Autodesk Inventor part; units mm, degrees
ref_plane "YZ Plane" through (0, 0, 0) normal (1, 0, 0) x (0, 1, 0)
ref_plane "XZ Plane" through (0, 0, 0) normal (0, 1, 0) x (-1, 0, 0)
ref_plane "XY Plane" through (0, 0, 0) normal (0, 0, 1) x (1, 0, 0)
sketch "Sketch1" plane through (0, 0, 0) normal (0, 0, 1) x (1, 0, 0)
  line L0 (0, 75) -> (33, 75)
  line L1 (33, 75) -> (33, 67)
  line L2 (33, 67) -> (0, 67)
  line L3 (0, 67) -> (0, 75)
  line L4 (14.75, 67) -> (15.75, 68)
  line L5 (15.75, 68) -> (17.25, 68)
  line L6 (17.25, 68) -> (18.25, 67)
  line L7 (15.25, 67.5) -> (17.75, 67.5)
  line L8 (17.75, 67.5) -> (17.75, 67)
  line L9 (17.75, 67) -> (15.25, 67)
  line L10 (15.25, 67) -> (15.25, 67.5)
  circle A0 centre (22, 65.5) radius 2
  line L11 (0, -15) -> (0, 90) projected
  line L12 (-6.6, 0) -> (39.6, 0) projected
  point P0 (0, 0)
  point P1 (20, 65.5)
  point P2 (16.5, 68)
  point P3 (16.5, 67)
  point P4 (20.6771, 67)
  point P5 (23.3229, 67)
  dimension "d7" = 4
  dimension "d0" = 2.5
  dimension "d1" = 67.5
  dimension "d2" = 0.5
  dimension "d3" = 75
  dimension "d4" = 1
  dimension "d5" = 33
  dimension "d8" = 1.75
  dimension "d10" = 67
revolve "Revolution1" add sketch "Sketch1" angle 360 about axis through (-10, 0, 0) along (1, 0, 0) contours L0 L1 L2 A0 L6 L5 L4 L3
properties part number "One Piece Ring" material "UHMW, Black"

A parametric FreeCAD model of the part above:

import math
import FreeCAD as App
import Part
import Sketcher

doc = App.newDocument("Part")
body = doc.addObject("PartDesign::Body", "Body")

# Sketch on XY plane
sketch1 = body.newObject("Sketcher::SketchObject", "Sketch")
sketch1.AttachmentSupport = (doc.getObject("XY_Plane"), [""])
sketch1.MapMode = "FlatFace"
sketch1.addGeometry([
    Part.LineSegment(App.Vector(33, 75, 0), App.Vector(0, 75, 0)),  # 0
    Part.LineSegment(App.Vector(0, 75, 0), App.Vector(0, 67, 0)),  # 1
    Part.LineSegment(App.Vector(0, 67, 0), App.Vector(14.8, 67, 0)),  # 2
    Part.LineSegment(App.Vector(14.8, 67, 0), App.Vector(15.8, 68, 0)),  # 3
    Part.LineSegment(App.Vector(15.8, 68, 0), App.Vector(17.2, 68, 0)),  # 4
    Part.LineSegment(App.Vector(17.2, 68, 0), App.Vector(18.2, 67, 0)),  # 5
    Part.LineSegment(App.Vector(18.2, 67, 0), App.Vector(20.7, 67, 0)),  # 6
    Part.ArcOfCircle(Part.Circle(App.Vector(22, 65.5, 0), App.Vector(0, 0, 1), 2), math.radians(49), math.radians(131)),  # 7
    Part.LineSegment(App.Vector(23.3, 67, 0), App.Vector(33, 67, 0)),  # 8
    Part.LineSegment(App.Vector(33, 67, 0), App.Vector(33, 75, 0)),  # 9
], False)
sketch1.addConstraint([
    Sketcher.Constraint("Coincident", 0, 2, 1, 1),
    Sketcher.Constraint("Coincident", 1, 2, 2, 1),
    Sketcher.Constraint("Coincident", 2, 2, 3, 1),
    Sketcher.Constraint("Coincident", 3, 2, 4, 1),
    Sketcher.Constraint("Coincident", 4, 2, 5, 1),
    Sketcher.Constraint("Coincident", 5, 2, 6, 1),
    Sketcher.Constraint("Coincident", 6, 2, 7, 2),
    Sketcher.Constraint("Coincident", 7, 1, 8, 1),
    Sketcher.Constraint("Coincident", 8, 2, 9, 1),
    Sketcher.Constraint("Coincident", 9, 2, 0, 1),
    Sketcher.Constraint("Horizontal", 0),
    Sketcher.Constraint("Vertical", 1),
    Sketcher.Constraint("Horizontal", 2),
    Sketcher.Constraint("Horizontal", 4),
    Sketcher.Constraint("Horizontal", 6),
    Sketcher.Constraint("Horizontal", 8),
    Sketcher.Constraint("Vertical", 9),
    Sketcher.Constraint("PointOnObject", 0, 2, -2),
    Sketcher.Constraint("Perpendicular", 3, 5),
    Sketcher.Constraint("Horizontal", 2, 2, 5, 2),
    Sketcher.Constraint("Horizontal", 6, 2, 7, 1),
    Sketcher.Constraint("Equal", 3, 5),
    Sketcher.Constraint("Radius", 7, 2.0),
    Sketcher.Constraint("DistanceX", 0, 2, 0, 1, 33.0),
    Sketcher.Constraint("DistanceY", -1, 1, 0, 2, 75.0),
    Sketcher.Constraint("DistanceY", -1, 1, 1, 2, 67.0),
    Sketcher.Constraint("DistanceX", 2, 2, 3, 2, 1.0),
    Sketcher.Constraint("DistanceY", 7, 3, 3, 2, 2.5),
    Sketcher.Constraint("DistanceX", 2, 2, 4, 2, 2.5),
    Sketcher.Constraint("DistanceX", -1, 1, 7, 3, 22.0),
    Sketcher.Constraint("DistanceX", 2, 1, 2, 2, 14.75),
])
revolution = body.newObject("PartDesign::Revolution", "Revolution")
revolution.Profile = sketch1
revolution.ReferenceAxis = (sketch1, ["H_Axis"])
revolution.Angle = 360

doc.recompute()
